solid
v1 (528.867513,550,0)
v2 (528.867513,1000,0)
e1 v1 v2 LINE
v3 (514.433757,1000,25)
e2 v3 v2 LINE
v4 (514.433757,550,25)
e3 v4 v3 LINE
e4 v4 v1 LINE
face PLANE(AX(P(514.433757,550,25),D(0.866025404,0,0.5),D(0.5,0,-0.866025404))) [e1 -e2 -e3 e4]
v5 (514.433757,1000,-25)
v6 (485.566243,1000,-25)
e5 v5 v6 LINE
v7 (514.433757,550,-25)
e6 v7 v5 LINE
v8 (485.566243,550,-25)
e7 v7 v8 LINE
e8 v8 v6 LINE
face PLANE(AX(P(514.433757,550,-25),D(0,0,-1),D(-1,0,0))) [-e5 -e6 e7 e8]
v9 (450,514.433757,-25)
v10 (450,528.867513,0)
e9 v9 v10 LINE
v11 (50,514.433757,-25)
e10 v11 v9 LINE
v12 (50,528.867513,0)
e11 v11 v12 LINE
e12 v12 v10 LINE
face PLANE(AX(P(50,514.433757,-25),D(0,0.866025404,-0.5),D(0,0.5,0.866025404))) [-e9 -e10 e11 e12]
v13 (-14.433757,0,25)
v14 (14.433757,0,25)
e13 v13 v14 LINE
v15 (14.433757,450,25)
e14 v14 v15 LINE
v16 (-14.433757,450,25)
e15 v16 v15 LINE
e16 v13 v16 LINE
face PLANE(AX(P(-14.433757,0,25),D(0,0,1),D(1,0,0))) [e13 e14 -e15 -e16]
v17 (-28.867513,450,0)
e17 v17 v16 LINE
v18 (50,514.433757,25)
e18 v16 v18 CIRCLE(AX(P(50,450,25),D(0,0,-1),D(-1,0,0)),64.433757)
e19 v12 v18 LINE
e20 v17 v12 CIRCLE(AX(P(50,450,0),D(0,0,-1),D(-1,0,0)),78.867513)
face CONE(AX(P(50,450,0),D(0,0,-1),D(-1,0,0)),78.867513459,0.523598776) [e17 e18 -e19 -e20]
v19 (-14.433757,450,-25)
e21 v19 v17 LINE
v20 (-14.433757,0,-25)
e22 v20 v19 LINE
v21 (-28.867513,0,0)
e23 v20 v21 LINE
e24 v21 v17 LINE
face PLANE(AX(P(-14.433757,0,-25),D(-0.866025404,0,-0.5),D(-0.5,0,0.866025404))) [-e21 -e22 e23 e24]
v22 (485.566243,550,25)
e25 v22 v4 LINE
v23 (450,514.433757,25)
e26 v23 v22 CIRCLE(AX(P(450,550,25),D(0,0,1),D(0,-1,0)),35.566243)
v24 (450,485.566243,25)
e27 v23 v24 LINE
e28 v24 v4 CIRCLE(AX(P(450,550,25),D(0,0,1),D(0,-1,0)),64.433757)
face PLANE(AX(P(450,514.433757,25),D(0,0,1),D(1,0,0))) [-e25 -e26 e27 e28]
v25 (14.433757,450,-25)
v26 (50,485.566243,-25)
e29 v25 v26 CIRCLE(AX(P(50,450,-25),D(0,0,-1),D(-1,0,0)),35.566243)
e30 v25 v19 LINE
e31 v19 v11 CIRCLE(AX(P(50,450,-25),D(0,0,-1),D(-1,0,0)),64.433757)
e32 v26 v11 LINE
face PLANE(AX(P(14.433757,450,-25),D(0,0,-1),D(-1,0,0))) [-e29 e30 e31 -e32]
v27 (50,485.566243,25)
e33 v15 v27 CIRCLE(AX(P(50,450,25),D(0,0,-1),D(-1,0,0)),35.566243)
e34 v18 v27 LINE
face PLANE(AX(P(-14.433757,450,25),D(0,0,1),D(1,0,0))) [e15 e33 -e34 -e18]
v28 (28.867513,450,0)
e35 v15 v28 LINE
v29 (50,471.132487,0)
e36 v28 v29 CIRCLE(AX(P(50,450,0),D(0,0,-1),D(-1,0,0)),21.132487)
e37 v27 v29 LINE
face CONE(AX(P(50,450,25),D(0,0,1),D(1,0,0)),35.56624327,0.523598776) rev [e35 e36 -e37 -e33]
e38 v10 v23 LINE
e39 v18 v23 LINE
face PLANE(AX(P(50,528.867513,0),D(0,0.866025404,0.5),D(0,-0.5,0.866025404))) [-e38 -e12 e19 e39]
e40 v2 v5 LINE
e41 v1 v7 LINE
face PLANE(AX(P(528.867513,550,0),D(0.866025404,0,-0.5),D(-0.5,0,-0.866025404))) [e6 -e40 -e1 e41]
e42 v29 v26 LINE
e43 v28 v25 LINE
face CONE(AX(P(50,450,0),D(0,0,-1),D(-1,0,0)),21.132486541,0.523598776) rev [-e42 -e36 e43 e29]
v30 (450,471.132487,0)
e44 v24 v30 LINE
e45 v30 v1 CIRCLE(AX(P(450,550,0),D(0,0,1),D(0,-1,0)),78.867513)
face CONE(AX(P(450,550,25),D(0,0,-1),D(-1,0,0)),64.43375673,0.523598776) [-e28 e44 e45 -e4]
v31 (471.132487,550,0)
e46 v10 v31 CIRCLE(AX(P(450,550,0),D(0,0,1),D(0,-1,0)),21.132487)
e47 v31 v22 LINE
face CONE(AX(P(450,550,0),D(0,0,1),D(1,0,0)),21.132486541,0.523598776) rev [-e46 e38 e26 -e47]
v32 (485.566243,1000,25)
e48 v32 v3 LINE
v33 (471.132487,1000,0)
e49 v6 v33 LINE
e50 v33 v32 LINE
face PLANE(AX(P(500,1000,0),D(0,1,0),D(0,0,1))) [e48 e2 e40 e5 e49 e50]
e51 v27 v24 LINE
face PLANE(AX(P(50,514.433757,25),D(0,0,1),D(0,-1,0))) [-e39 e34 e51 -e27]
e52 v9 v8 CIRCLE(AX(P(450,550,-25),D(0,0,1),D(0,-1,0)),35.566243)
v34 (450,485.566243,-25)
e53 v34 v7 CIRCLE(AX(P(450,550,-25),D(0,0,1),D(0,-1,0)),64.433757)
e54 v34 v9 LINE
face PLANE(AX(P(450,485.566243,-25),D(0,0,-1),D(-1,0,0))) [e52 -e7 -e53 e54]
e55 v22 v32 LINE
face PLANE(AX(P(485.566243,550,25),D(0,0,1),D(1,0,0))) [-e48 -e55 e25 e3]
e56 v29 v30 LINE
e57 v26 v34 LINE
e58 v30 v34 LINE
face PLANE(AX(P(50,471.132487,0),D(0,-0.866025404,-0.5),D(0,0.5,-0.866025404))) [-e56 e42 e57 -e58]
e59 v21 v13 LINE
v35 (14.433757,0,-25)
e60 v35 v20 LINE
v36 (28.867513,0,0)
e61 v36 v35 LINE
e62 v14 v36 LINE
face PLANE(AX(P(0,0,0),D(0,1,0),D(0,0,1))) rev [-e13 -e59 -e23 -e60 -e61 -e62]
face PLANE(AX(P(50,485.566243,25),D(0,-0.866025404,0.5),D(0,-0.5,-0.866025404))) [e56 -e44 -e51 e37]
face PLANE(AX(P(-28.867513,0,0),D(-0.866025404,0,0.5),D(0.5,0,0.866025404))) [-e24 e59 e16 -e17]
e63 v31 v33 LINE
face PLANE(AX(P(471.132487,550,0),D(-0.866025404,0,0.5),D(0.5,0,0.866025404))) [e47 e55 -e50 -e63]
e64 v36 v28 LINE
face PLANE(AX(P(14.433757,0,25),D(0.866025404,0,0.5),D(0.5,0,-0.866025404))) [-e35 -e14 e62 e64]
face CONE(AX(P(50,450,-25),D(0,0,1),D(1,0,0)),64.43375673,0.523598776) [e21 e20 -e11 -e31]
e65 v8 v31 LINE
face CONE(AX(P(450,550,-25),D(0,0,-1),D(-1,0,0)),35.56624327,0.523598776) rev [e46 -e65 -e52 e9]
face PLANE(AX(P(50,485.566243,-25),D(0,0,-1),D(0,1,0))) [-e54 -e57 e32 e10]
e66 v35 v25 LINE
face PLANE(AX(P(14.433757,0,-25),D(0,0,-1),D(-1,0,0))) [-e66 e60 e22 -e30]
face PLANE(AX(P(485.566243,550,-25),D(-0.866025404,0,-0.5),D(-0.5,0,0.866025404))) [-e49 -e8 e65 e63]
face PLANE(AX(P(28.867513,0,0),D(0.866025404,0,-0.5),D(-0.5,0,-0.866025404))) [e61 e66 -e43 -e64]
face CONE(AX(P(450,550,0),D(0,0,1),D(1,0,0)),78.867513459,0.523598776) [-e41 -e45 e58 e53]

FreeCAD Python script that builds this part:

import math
import FreeCAD as App
import Part
import Sketcher
from FreeCAD import Vector
Q = App.Units.Quantity

doc = App.newDocument("Part")
body = doc.addObject("PartDesign::Body", "Body")

sketch1 = doc.addObject("Sketcher::SketchObject", "Sketch")
body.addObject(sketch1)
sketch1.AttachmentSupport = (doc.XZ_Plane, [""])
sketch1.MapMode = "FlatFace"
sketch1.addGeometry(Part.LineSegment(Vector(-14, 25, 0), Vector(14, 25, 0)), False)
sketch1.addGeometry(Part.LineSegment(Vector(14, 25, 0), Vector(29, 0, 0)), False)
sketch1.addGeometry(Part.LineSegment(Vector(29, 0, 0), Vector(14, -25, 0)), False)
sketch1.addGeometry(Part.LineSegment(Vector(14, -25, 0), Vector(-14, -25, 0)), False)
sketch1.addGeometry(Part.LineSegment(Vector(-14, -25, 0), Vector(-29, 0, 0)), False)
sketch1.addGeometry(Part.LineSegment(Vector(-29, 0, 0), Vector(-14, 25, 0)), False)
sketch1.addConstraint(Sketcher.Constraint("Coincident", 0, 2, 1, 1))
sketch1.addConstraint(Sketcher.Constraint("Coincident", 1, 2, 2, 1))
sketch1.addConstraint(Sketcher.Constraint("Coincident", 2, 2, 3, 1))
sketch1.addConstraint(Sketcher.Constraint("Coincident", 3, 2, 4, 1))
sketch1.addConstraint(Sketcher.Constraint("Coincident", 4, 2, 5, 1))
sketch1.addConstraint(Sketcher.Constraint("Coincident", 5, 2, 0, 1))
sketch1.addConstraint(Sketcher.Constraint("Horizontal", 0))
sketch1.addConstraint(Sketcher.Constraint("Horizontal", 3))
sketch1.addConstraint(Sketcher.Constraint("Symmetric", 0, 2, 3, 2, -1, 1))
sketch1.addConstraint(Sketcher.Constraint("Symmetric", 1, 2, 4, 2, -1, 1))
sketch1.addConstraint(Sketcher.Constraint("PointOnObject", 1, 2, -1))
sketch1.addConstraint(Sketcher.Constraint("Parallel", 2, 5))
sketch1.addConstraint(Sketcher.Constraint("Vertical", 0, 2, 2, 2))
sketch1.addConstraint(Sketcher.Constraint("Angle", 1, Q("-60 deg")))
sketch1.addConstraint(Sketcher.Constraint("DistanceY", -1, 1, 0, 2, Q("25 mm")))
sketch1.addConstraint(Sketcher.Constraint("DistanceX", 0, 1, 0, 2, Q("28.867513 mm")))

sketch2 = doc.addObject("Sketcher::SketchObject", "Sketch001")
body.addObject(sketch2)
sketch2.AttachmentSupport = (doc.XY_Plane, [""])
sketch2.MapMode = "FlatFace"
sketch2.addGeometry(Part.LineSegment(Vector(0, 0, 0), Vector(0, 450, 0)), False)
sketch2.addGeometry(Part.ArcOfCircle(Part.Circle(Vector(50, 450, 0), Vector(0, 0, 1), 50), math.radians(90), math.radians(180)), False)
sketch2.addGeometry(Part.LineSegment(Vector(50, 500, 0), Vector(450, 500, 0)), False)
sketch2.addGeometry(Part.ArcOfCircle(Part.Circle(Vector(450, 550, 0), Vector(0, 0, 1), 50), math.radians(-90), math.radians(0)), False)
sketch2.addGeometry(Part.LineSegment(Vector(500, 550, 0), Vector(500, 1000, 0)), False)
sketch2.addConstraint(Sketcher.Constraint("Tangent", 0, 2, 1, 2))
sketch2.addConstraint(Sketcher.Constraint("Tangent", 1, 1, 2, 1))
sketch2.addConstraint(Sketcher.Constraint("Tangent", 2, 2, 3, 1))
sketch2.addConstraint(Sketcher.Constraint("Tangent", 3, 2, 4, 1))
sketch2.addConstraint(Sketcher.Constraint("Vertical", 0))
sketch2.addConstraint(Sketcher.Constraint("Horizontal", 2))
sketch2.addConstraint(Sketcher.Constraint("Vertical", 4))
sketch2.addConstraint(Sketcher.Constraint("Coincident", 0, 1, -1, 1))
sketch2.addConstraint(Sketcher.Constraint("Equal", 1, 3))
sketch2.addConstraint(Sketcher.Constraint("Equal", 0, 4))
sketch2.addConstraint(Sketcher.Constraint("Radius", 1, Q("50 mm")))
sketch2.addConstraint(Sketcher.Constraint("DistanceX", 2, 1, 2, 2, Q("400 mm")))
sketch2.addConstraint(Sketcher.Constraint("DistanceY", 0, 1, 0, 2, Q("450 mm")))
doc.recompute()

additivepipe = doc.addObject("PartDesign::AdditivePipe", "AdditivePipe")
body.addObject(additivepipe)
additivepipe.Profile = sketch1
additivepipe.Spine = (sketch2, ["Edge1", "Edge2", "Edge3", "Edge4", "Edge5"])

doc.recompute()
